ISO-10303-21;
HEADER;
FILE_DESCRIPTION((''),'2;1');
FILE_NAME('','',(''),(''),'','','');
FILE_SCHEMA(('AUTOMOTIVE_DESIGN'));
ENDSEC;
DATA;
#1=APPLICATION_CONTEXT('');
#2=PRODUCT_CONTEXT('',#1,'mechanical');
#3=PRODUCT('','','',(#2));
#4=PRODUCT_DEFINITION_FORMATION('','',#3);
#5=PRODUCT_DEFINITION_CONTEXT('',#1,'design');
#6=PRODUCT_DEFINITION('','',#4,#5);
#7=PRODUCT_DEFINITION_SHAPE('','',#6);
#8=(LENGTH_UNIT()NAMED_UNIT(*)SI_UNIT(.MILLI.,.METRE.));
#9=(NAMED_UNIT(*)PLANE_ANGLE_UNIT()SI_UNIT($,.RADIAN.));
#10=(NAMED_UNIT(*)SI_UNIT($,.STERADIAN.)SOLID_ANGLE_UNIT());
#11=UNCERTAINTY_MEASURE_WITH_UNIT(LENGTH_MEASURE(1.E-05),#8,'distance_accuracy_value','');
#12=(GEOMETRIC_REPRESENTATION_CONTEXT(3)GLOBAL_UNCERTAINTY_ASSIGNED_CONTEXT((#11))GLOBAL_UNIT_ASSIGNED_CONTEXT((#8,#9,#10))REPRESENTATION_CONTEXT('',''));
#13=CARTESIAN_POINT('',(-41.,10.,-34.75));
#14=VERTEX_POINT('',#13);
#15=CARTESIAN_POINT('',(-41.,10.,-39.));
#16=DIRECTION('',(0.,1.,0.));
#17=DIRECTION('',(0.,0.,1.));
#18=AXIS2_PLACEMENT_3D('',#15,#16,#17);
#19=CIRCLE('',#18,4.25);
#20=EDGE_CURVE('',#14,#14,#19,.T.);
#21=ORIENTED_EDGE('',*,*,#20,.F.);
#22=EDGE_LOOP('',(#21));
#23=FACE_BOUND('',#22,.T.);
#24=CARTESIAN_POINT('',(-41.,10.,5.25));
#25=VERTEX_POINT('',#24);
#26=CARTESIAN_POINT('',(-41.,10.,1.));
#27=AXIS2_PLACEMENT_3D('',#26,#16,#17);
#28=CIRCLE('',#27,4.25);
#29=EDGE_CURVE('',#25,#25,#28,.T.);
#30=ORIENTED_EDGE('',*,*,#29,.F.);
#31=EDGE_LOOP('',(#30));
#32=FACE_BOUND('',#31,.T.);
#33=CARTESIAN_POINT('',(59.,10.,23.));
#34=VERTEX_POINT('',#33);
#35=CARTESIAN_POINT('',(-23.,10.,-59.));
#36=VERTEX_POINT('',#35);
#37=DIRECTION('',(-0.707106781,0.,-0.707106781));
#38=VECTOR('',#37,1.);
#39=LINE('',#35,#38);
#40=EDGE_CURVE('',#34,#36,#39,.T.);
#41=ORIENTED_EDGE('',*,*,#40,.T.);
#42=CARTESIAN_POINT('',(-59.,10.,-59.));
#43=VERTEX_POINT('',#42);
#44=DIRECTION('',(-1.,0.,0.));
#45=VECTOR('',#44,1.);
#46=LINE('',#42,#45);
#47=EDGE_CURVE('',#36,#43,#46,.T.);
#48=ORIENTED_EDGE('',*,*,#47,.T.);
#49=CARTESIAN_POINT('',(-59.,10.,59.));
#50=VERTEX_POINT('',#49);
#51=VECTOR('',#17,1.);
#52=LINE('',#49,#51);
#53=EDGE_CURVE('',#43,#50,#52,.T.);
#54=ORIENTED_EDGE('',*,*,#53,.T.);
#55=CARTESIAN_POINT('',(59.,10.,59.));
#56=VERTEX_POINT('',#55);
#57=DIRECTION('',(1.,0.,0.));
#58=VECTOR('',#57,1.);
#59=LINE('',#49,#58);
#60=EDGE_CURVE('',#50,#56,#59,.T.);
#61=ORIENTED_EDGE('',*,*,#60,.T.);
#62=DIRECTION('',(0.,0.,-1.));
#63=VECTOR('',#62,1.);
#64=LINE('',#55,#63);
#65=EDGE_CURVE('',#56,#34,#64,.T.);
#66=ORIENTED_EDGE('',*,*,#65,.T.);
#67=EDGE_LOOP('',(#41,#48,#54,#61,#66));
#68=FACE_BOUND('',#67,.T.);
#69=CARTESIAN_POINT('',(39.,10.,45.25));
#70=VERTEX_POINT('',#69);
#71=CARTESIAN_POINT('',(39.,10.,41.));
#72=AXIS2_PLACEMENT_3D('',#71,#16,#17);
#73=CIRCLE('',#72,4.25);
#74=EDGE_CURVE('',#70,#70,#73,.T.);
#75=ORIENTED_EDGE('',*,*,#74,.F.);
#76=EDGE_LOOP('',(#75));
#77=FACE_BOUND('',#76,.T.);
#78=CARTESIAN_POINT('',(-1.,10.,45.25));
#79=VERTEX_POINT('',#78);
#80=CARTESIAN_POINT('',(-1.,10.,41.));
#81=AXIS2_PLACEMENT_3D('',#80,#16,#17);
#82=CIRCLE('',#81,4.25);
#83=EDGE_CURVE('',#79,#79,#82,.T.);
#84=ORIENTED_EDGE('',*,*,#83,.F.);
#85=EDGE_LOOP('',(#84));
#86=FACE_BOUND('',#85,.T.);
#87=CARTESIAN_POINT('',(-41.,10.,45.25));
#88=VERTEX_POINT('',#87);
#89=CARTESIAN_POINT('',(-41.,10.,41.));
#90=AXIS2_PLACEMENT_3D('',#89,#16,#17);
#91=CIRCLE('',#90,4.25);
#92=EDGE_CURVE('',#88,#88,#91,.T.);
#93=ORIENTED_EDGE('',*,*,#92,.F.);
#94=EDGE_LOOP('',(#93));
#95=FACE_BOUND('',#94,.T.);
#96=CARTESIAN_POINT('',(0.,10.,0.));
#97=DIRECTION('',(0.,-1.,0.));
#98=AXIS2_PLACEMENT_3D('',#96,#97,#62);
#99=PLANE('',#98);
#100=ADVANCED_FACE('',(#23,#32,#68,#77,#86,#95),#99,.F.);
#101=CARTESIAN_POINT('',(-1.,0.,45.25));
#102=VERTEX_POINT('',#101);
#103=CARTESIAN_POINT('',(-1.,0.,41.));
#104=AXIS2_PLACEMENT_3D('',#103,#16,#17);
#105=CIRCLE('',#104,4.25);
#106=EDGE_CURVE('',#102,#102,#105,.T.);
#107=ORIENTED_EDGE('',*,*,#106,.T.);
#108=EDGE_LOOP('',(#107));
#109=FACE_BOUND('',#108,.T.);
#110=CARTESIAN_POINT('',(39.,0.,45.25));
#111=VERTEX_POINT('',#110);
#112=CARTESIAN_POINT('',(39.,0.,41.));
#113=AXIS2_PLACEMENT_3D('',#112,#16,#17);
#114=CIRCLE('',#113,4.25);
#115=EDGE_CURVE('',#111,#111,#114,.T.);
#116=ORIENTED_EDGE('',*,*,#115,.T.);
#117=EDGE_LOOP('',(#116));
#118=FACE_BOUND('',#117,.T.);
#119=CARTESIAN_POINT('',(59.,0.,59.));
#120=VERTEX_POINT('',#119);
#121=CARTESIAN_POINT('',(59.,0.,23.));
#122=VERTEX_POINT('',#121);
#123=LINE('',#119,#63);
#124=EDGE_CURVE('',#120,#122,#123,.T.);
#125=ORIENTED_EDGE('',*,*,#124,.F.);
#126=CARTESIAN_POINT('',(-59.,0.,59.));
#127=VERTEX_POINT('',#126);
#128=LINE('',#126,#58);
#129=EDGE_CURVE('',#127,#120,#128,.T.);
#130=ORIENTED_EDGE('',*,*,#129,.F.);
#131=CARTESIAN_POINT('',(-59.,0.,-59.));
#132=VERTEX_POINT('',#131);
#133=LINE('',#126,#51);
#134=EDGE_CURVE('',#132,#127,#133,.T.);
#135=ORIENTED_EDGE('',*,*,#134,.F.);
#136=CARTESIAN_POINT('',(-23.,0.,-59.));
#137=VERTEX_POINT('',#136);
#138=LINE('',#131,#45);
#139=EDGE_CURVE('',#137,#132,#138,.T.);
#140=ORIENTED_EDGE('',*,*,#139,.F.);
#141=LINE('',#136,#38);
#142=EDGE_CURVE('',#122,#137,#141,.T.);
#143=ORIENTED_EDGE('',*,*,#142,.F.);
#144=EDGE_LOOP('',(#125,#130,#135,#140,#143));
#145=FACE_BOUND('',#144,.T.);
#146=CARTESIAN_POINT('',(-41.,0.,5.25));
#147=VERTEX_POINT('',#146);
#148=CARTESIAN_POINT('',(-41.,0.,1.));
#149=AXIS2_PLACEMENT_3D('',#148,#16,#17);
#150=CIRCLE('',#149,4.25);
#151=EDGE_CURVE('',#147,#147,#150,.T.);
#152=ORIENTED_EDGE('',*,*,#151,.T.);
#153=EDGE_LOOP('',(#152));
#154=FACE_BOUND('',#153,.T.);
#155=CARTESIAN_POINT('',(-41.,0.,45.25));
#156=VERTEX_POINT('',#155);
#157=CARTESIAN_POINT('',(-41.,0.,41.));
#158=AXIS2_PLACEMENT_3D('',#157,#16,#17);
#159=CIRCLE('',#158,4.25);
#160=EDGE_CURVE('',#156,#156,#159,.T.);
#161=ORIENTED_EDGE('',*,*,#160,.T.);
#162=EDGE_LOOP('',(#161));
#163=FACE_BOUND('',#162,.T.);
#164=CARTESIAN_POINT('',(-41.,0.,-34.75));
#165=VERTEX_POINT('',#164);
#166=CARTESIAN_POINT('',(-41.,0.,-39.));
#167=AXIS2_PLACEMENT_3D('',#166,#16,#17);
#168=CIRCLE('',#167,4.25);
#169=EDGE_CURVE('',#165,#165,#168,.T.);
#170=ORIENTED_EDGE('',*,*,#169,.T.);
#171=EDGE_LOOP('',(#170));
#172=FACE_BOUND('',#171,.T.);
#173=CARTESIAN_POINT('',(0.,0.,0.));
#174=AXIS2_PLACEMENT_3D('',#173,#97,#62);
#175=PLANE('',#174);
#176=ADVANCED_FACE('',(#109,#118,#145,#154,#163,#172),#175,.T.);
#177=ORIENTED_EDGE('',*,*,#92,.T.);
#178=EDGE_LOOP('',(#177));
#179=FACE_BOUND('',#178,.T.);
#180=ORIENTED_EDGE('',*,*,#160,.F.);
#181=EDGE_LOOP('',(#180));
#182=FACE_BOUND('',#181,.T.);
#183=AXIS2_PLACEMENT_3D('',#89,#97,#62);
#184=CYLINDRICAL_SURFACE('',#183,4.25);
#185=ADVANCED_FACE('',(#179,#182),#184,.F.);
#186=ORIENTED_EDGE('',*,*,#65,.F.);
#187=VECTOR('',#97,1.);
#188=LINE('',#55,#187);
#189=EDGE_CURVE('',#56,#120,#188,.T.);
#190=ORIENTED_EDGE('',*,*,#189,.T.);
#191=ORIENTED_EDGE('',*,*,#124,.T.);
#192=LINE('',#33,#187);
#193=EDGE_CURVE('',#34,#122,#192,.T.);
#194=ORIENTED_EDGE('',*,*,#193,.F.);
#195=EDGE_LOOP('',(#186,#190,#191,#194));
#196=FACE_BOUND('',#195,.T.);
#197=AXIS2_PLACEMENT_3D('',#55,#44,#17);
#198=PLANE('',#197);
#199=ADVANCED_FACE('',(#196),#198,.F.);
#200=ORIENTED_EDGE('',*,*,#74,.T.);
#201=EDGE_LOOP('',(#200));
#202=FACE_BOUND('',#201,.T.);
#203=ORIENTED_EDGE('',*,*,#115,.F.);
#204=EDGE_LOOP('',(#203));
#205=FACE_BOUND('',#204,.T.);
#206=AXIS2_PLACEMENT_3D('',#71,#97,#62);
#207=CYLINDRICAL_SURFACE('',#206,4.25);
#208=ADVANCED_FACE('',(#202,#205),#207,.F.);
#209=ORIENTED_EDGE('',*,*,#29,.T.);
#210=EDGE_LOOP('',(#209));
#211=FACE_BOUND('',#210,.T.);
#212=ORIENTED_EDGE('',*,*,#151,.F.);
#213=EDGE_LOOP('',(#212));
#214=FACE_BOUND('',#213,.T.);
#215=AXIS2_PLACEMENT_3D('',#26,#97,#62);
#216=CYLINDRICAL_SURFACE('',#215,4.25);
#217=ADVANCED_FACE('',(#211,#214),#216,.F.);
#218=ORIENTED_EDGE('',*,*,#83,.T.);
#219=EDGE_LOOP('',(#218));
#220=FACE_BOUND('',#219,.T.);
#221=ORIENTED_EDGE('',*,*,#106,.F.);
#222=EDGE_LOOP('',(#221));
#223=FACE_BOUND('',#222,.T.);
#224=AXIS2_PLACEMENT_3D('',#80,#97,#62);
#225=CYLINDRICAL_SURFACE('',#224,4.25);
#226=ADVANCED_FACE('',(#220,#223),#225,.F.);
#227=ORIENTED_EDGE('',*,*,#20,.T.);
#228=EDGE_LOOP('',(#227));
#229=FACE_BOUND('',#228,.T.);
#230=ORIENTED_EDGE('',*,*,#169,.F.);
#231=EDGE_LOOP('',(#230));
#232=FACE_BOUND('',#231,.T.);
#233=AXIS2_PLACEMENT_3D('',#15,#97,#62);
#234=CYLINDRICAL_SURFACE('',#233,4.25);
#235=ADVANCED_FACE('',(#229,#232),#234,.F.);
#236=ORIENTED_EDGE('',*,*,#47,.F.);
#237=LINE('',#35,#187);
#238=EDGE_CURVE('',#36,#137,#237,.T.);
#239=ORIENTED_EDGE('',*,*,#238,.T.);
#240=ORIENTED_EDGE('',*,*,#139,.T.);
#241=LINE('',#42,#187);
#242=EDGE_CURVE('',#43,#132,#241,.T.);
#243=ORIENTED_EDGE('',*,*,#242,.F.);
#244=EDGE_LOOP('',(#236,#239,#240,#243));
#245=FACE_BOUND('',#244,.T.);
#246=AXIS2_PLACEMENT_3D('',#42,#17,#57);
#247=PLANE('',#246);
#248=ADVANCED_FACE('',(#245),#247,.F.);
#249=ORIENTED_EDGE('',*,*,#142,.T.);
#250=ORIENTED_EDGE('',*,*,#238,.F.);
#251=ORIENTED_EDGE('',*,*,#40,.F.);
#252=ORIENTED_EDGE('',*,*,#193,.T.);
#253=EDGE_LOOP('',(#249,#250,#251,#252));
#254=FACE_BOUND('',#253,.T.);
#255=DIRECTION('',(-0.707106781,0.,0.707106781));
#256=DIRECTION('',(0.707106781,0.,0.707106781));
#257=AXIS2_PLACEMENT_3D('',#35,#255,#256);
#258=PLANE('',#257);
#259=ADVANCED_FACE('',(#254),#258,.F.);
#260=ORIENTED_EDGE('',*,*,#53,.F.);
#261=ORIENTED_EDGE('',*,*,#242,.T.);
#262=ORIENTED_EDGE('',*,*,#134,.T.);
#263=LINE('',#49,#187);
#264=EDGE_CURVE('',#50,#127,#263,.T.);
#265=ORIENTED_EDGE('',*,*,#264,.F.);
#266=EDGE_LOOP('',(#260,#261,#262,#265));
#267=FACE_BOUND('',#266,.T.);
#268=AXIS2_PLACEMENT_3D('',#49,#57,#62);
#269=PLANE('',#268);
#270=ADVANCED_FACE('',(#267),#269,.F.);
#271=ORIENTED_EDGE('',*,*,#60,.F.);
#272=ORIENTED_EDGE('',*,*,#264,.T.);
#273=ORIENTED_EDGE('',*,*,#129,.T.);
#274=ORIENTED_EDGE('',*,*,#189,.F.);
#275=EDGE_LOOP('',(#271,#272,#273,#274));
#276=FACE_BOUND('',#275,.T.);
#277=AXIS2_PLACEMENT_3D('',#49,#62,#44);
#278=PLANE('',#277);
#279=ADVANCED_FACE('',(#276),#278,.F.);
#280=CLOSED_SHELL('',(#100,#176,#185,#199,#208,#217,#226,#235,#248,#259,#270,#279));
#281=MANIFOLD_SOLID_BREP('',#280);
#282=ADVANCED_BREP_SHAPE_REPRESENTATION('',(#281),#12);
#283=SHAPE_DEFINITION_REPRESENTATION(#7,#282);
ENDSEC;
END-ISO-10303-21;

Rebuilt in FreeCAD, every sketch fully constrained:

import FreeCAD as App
import Part
import Sketcher


def add_polygon(sketch, points):
    """Adds a closed chain of lines whose ends are joined by coincident constraints."""
    first, n = sketch.GeometryCount, len(points)
    for a, b in zip(points, points[1:] + points[:1]):
        sketch.addGeometry(Part.LineSegment(App.Vector(*a, 0), App.Vector(*b, 0)), False)
    for i in range(n):
        sketch.addConstraint(Sketcher.Constraint("Coincident", first + i, 2, first + (i + 1) % n, 1))

doc = App.newDocument("Part")
body = doc.addObject("PartDesign::Body", "Body")

sketch1 = body.newObject("Sketcher::SketchObject", "Sketch")
sketch1.AttachmentSupport = (doc.getObject("XZ_Plane"), [""])
sketch1.MapMode = "FlatFace"
add_polygon(sketch1, [(-59, 59), (59, 59), (59, 23), (-23, -59), (-59, -59)])
sketch1.addGeometry(Part.Circle(App.Vector(-41, 41, 0), App.Vector(0, 0, 1), 4.2), False)
sketch1.addGeometry(Part.Circle(App.Vector(-1, 41, 0), App.Vector(0, 0, 1), 4.2), False)
sketch1.addGeometry(Part.Circle(App.Vector(39, 41, 0), App.Vector(0, 0, 1), 4.2), False)
sketch1.addGeometry(Part.Circle(App.Vector(-41, 1, 0), App.Vector(0, 0, 1), 4.2), False)
sketch1.addGeometry(Part.Circle(App.Vector(-41, -39, 0), App.Vector(0, 0, 1), 4.2), False)
sketch1.addConstraint([
    Sketcher.Constraint("Horizontal", 0),
    Sketcher.Constraint("Vertical", 1),
    Sketcher.Constraint("Horizontal", 3),
    Sketcher.Constraint("Vertical", 4),
    Sketcher.Constraint("Equal", 5, 6),
    Sketcher.Constraint("Equal", 6, 7),
    Sketcher.Constraint("Equal", 7, 8),
    Sketcher.Constraint("Equal", 8, 9),
    Sketcher.Constraint("Symmetric", 0, 2, 3, 2, -1, 1),
    Sketcher.Constraint("Horizontal", 5, 3, 6, 3),
    Sketcher.Constraint("Horizontal", 6, 3, 7, 3),
    Sketcher.Constraint("Vertical", 5, 3, 8, 3),
    Sketcher.Constraint("Vertical", 8, 3, 9, 3),
    Sketcher.Constraint("Equal", 3, 1),
    Sketcher.Constraint("Equal", 0, 4),
    Sketcher.Constraint("Diameter", 5, 8.5),
    Sketcher.Constraint("DistanceX", 0, 1, 0, 2, 118.0),
    Sketcher.Constraint("DistanceX", 3, 2, 3, 1, 36.0),
    Sketcher.Constraint("DistanceX", 5, 3, -1, 1, 41.0),
    Sketcher.Constraint("DistanceY", -1, 1, 5, 3, 41.0),
    Sketcher.Constraint("DistanceX", 6, 3, -1, 1, 1.0),
    Sketcher.Constraint("DistanceX", -1, 1, 7, 3, 39.0),
    Sketcher.Constraint("DistanceY", -1, 1, 8, 3, 1.0),
    Sketcher.Constraint("DistanceY", 9, 3, -1, 1, 39.0),
])
pad1 = body.newObject("PartDesign::Pad", "Pad")
pad1.Profile = sketch1
pad1.Length = 10
pad1.Reversed = True

doc.recompute()
